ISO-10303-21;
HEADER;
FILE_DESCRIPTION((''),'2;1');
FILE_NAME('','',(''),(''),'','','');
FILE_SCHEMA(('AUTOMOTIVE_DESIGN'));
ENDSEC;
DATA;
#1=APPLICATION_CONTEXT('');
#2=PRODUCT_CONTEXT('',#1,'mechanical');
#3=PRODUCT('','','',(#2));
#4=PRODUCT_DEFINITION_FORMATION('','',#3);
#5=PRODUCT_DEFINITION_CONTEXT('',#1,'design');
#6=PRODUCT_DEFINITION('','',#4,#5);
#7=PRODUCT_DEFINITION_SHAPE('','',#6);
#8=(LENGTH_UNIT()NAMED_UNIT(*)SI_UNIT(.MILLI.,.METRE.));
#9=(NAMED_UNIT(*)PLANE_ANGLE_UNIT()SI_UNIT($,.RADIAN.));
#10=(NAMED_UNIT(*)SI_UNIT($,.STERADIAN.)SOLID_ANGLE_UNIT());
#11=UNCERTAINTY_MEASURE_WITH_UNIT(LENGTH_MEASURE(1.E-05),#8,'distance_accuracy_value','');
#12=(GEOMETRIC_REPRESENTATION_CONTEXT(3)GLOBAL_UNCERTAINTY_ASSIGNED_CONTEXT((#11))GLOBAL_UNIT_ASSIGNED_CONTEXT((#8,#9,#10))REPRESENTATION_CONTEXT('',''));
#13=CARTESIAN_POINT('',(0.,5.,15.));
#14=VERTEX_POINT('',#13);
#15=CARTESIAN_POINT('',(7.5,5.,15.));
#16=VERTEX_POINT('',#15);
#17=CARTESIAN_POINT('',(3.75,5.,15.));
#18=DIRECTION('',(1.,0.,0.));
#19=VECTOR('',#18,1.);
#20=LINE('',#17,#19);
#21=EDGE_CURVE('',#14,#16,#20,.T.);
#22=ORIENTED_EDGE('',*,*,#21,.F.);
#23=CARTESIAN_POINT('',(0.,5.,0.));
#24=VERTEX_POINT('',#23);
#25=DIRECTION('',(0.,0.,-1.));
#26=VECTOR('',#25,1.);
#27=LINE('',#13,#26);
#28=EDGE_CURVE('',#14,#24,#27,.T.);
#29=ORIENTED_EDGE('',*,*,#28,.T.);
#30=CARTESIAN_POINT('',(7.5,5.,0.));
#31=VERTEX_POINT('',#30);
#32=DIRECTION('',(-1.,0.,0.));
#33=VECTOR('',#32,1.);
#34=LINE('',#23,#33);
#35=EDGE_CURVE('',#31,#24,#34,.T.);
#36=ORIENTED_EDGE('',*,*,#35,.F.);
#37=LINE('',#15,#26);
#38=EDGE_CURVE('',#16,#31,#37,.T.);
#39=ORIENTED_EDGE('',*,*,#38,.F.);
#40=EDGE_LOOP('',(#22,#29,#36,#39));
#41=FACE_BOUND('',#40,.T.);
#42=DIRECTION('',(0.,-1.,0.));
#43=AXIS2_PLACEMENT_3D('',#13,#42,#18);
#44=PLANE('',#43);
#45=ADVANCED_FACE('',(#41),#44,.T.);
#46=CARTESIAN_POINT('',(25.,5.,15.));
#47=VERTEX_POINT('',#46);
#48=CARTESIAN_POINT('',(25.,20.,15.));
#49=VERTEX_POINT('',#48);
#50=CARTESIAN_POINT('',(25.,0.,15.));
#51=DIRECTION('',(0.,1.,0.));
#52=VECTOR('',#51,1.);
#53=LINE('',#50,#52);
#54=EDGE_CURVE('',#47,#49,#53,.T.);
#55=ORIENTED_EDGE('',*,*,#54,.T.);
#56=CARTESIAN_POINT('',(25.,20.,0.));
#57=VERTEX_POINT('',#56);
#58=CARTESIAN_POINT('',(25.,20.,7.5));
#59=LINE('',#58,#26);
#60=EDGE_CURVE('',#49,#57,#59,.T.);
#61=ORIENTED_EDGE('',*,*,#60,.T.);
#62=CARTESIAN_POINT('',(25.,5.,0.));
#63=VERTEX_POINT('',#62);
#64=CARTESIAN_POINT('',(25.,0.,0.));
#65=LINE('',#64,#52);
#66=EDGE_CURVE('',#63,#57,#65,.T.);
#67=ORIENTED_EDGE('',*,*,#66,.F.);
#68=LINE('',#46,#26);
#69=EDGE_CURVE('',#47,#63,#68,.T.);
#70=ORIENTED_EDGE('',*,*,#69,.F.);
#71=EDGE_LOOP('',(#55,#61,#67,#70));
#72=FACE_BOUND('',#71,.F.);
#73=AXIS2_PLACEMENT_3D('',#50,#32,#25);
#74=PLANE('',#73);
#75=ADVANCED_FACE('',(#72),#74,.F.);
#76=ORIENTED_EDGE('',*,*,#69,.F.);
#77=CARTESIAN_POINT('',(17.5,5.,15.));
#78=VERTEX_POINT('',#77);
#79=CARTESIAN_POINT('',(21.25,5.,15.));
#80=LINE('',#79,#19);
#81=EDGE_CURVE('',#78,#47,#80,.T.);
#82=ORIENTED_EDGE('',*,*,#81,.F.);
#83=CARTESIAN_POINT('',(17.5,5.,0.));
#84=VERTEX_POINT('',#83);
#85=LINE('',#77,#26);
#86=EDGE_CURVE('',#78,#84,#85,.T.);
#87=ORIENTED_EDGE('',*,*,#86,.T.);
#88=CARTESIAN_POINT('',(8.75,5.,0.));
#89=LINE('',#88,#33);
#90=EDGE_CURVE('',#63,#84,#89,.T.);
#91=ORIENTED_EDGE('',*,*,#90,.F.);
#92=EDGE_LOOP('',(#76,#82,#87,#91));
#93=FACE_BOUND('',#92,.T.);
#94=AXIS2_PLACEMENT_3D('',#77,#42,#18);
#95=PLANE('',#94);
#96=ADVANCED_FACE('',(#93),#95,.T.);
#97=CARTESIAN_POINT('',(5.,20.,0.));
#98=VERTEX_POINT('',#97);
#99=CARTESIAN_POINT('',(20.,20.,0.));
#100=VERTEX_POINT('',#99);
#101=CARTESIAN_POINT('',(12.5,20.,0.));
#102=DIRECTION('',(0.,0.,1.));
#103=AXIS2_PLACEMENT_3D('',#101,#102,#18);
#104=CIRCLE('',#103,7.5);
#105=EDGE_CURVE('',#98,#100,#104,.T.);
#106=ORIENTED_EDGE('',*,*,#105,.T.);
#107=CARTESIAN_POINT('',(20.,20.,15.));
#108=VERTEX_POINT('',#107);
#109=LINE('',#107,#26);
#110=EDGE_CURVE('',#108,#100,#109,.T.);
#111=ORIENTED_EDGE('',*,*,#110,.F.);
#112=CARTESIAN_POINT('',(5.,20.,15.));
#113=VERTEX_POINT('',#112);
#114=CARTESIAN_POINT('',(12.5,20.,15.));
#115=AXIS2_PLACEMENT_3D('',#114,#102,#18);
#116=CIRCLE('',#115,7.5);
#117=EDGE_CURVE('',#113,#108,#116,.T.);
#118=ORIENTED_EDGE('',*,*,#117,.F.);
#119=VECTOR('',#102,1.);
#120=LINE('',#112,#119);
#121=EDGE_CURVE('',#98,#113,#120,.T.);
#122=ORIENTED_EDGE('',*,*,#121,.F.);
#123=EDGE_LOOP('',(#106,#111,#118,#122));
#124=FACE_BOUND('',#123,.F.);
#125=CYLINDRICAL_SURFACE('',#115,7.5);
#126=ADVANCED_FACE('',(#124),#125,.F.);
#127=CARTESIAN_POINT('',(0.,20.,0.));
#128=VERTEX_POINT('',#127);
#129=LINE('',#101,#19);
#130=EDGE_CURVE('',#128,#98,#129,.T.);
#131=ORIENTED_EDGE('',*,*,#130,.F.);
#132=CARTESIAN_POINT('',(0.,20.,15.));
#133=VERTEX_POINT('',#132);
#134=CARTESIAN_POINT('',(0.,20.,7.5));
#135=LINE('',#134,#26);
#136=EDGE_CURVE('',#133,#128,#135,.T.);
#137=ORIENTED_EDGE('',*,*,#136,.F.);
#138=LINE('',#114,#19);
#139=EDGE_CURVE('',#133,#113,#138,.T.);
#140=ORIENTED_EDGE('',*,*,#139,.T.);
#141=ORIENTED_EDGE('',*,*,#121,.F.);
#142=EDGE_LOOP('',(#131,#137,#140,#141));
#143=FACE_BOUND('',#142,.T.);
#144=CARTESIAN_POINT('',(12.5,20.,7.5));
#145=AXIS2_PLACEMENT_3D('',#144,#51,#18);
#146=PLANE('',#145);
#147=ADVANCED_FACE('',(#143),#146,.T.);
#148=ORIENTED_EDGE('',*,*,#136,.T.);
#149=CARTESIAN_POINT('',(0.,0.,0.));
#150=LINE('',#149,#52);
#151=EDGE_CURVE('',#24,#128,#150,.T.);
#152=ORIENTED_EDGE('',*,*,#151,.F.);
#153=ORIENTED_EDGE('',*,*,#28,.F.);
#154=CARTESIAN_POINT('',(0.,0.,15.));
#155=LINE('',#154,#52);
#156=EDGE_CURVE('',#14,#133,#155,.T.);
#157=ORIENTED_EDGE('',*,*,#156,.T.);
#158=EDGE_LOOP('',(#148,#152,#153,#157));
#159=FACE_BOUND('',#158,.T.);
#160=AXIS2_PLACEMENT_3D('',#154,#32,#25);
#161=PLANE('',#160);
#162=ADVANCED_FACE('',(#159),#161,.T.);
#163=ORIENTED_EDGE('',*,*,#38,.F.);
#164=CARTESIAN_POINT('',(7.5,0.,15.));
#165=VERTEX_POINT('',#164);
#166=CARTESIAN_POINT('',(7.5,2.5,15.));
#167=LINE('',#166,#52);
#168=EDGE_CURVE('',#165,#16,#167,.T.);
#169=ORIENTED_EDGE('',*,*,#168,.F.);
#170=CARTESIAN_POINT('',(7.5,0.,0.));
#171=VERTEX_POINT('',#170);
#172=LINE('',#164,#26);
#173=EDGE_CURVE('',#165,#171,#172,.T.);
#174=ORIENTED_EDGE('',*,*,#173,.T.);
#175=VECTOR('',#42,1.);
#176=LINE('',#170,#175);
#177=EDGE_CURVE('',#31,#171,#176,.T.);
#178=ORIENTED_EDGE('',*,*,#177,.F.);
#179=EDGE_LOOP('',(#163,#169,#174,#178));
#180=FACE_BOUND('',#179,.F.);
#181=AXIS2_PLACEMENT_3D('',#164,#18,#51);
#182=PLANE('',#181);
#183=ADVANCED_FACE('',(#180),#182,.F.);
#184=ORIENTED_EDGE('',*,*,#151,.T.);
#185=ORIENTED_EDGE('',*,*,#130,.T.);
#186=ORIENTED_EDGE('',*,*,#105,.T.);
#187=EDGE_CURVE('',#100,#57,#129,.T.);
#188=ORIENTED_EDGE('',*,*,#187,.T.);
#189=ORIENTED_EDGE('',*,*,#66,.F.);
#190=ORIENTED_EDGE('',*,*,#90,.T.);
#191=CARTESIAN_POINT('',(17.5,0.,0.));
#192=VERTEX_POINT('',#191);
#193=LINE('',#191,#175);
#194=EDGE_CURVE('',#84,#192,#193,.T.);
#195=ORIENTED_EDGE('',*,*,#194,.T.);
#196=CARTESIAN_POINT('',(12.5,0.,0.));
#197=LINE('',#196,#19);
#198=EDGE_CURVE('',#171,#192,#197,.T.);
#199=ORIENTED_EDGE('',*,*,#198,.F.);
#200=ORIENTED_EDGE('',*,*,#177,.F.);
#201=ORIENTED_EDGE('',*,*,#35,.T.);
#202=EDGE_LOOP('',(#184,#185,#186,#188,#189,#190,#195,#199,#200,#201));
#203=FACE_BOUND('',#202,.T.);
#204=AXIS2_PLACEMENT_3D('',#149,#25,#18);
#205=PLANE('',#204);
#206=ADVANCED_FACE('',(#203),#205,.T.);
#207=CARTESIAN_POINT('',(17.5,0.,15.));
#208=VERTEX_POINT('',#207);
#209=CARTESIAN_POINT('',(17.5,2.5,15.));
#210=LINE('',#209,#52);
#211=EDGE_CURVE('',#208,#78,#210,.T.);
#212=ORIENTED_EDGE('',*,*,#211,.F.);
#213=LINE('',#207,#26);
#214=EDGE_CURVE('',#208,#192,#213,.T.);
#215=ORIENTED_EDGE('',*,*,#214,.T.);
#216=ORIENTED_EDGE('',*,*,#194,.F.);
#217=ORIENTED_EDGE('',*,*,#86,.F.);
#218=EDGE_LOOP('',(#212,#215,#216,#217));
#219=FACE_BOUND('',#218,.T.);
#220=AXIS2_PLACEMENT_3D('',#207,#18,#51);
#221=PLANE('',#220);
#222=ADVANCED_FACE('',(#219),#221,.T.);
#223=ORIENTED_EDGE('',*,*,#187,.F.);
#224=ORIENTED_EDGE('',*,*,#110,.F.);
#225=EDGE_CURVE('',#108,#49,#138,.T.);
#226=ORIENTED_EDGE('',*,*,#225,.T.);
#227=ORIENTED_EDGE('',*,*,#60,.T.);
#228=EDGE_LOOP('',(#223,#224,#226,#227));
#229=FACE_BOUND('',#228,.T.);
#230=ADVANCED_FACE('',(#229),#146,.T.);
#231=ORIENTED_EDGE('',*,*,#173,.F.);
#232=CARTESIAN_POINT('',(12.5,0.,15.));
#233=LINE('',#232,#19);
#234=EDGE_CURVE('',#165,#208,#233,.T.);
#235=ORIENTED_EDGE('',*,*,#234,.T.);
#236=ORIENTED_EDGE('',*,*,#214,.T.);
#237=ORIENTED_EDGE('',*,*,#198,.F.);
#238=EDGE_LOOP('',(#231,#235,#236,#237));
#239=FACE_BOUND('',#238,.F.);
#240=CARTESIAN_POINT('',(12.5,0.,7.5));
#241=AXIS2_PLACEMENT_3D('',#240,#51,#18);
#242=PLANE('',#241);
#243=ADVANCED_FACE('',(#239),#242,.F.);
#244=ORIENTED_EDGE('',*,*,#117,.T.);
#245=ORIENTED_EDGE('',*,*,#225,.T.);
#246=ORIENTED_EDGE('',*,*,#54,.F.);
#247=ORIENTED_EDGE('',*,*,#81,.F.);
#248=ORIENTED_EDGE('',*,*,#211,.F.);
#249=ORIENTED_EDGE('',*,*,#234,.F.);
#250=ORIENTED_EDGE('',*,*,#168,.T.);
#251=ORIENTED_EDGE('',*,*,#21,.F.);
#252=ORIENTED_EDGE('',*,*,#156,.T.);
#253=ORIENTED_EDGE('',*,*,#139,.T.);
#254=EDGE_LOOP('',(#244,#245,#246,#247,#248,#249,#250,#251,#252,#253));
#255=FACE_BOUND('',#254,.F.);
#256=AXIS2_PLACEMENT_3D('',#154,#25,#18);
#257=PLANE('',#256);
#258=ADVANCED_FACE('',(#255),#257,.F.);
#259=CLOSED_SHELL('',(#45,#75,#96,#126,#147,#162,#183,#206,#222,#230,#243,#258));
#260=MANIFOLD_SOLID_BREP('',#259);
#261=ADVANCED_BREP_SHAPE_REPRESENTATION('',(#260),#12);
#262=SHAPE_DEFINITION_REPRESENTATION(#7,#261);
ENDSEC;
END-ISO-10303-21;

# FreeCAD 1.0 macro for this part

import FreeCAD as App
import Part
import Sketcher

doc = App.newDocument("Part")
body = doc.addObject("PartDesign::Body", "Body")

# Sketch on XZ plane
sketch1 = body.newObject("Sketcher::SketchObject", "Sketch")
sketch1.AttachmentSupport = (doc.getObject("XZ_Plane"), [""])
sketch1.MapMode = "FlatFace"
sketch1.addGeometry([
    Part.LineSegment(App.Vector(0, 0, 0), App.Vector(0, 15, 0)),
    Part.LineSegment(App.Vector(0, 15, 0), App.Vector(25, 15, 0)),
    Part.LineSegment(App.Vector(25, 15, 0), App.Vector(25, 0, 0)),
    Part.LineSegment(App.Vector(25, 0, 0), App.Vector(0, 0, 0)),
], False)
sketch1.addConstraint([
    Sketcher.Constraint("Coincident", 0, 2, 1, 1),
    Sketcher.Constraint("Coincident", 1, 2, 2, 1),
    Sketcher.Constraint("Coincident", 2, 2, 3, 1),
    Sketcher.Constraint("Coincident", 3, 2, 0, 1),
    Sketcher.Constraint("Vertical", 0),
    Sketcher.Constraint("Horizontal", 1),
    Sketcher.Constraint("Vertical", 2),
    Sketcher.Constraint("Horizontal", 3),
    Sketcher.Constraint("Coincident", 3, 2, -1, 1),
    Sketcher.Constraint("DistanceX", 1, 1, 1, 2, 25.0),
    Sketcher.Constraint("DistanceY", 0, 1, 0, 2, 15.0),
])
pad1 = body.newObject("PartDesign::Pad", "Pad")
pad1.Profile = sketch1
pad1.Length = 20
pad1.Reversed = True

# Sketch on XY plane
sketch2 = body.newObject("Sketcher::SketchObject", "Sketch001")
sketch2.AttachmentSupport = (doc.getObject("XY_Plane"), [""])
sketch2.MapMode = "FlatFace"
sketch2.AttachmentOffset = App.Placement(App.Vector(0, 0, 15), App.Rotation())
sketch2.addGeometry([
    Part.LineSegment(App.Vector(18, 5, 0), App.Vector(18, 0, 0)),  # 0
    Part.LineSegment(App.Vector(18, 0, 0), App.Vector(25, 0, 0)),  # 1
    Part.LineSegment(App.Vector(25, 0, 0), App.Vector(25, 5, 0)),  # 2
    Part.LineSegment(App.Vector(25, 5, 0), App.Vector(18, 5, 0)),  # 3
    Part.LineSegment(App.Vector(0, 5, 0), App.Vector(0, 0, 0)),  # 4
    Part.LineSegment(App.Vector(0, 0, 0), App.Vector(8, 0, 0)),  # 5
    Part.LineSegment(App.Vector(8, 0, 0), App.Vector(8, 5, 0)),  # 6
    Part.LineSegment(App.Vector(8, 5, 0), App.Vector(0, 5, 0)),  # 7
], False)
sketch2.addConstraint([
    Sketcher.Constraint("Coincident", 0, 2, 1, 1),
    Sketcher.Constraint("Coincident", 1, 2, 2, 1),
    Sketcher.Constraint("Coincident", 2, 2, 3, 1),
    Sketcher.Constraint("Coincident", 3, 2, 0, 1),
    Sketcher.Constraint("Coincident", 4, 2, 5, 1),
    Sketcher.Constraint("Coincident", 5, 2, 6, 1),
    Sketcher.Constraint("Coincident", 6, 2, 7, 1),
    Sketcher.Constraint("Coincident", 7, 2, 4, 1),
    Sketcher.Constraint("Vertical", 0),
    Sketcher.Constraint("Horizontal", 1),
    Sketcher.Constraint("Vertical", 2),
    Sketcher.Constraint("Horizontal", 3),
    Sketcher.Constraint("Vertical", 4),
    Sketcher.Constraint("Horizontal", 5),
    Sketcher.Constraint("Vertical", 6),
    Sketcher.Constraint("Horizontal", 7),
    Sketcher.Constraint("Coincident", 4, 2, -1, 1),
    Sketcher.Constraint("PointOnObject", 0, 2, -1),
    Sketcher.Constraint("Horizontal", 3, 2, 6, 2),
    Sketcher.Constraint("Equal", 3, 5),
    Sketcher.Constraint("DistanceY", 0, 2, 0, 1, 5.0),
    Sketcher.Constraint("DistanceX", 1, 1, 1, 2, 7.5),
    Sketcher.Constraint("DistanceX", -1, 1, 1, 2, 25.0),
])
pocket1 = body.newObject("PartDesign::Pocket", "Pocket")
pocket1.Profile = sketch2
pocket1.Length = 20

# Sketch on XY plane
sketch3 = body.newObject("Sketcher::SketchObject", "Sketch002")
sketch3.AttachmentSupport = (doc.getObject("XY_Plane"), [""])
sketch3.MapMode = "FlatFace"
sketch3.AttachmentOffset = App.Placement(App.Vector(0, 0, 15), App.Rotation())
sketch3.addGeometry(Part.Circle(App.Vector(12, 20, 0), App.Vector(0, 0, 1), 8), False)
sketch3.addConstraint([
    Sketcher.Constraint("Diameter", 0, 15.0),
    Sketcher.Constraint("DistanceY", -1, 1, 0, 3, 20.0),
    Sketcher.Constraint("DistanceX", -1, 1, 0, 3, 12.5),
])
pocket2 = body.newObject("PartDesign::Pocket", "Pocket001")
pocket2.Profile = sketch3
pocket2.Length = 20

doc.recompute()
